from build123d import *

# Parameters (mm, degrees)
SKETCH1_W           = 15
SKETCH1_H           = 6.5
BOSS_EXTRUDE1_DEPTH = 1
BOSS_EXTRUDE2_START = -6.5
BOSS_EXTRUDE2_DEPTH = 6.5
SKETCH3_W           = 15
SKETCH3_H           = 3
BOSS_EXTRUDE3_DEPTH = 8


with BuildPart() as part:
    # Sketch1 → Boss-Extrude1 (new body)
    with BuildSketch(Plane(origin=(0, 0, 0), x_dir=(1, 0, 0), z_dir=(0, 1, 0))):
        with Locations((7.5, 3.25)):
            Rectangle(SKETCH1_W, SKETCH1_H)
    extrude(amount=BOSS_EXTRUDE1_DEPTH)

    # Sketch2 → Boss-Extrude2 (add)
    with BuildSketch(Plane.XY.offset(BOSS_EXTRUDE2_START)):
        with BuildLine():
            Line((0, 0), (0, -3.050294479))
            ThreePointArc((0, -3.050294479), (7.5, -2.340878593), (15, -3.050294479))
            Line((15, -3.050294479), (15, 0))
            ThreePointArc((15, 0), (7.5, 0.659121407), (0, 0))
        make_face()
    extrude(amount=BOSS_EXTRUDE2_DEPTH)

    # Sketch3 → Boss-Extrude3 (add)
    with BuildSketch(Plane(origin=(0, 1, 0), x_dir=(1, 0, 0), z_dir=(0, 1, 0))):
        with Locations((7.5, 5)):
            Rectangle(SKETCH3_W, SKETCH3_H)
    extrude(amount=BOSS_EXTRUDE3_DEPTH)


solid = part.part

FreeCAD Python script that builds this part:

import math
import FreeCAD as App
import Part
import Sketcher
from FreeCAD import Vector
Q = App.Units.Quantity


def add_polygon(sketch, points):
    """Adds a closed chain of lines whose ends are joined by coincident constraints."""
    first, n = sketch.GeometryCount, len(points)
    for a, b in zip(points, points[1:] + points[:1]):
        sketch.addGeometry(Part.LineSegment(App.Vector(*a, 0), App.Vector(*b, 0)), False)
    for i in range(n):
        sketch.addConstraint(Sketcher.Constraint("Coincident", first + i, 2, first + (i + 1) % n, 1))

doc = App.newDocument("Part")
body = doc.addObject("PartDesign::Body", "Body")

# Sketch on XZ plane
sketch1 = doc.addObject("Sketcher::SketchObject", "Sketch")
body.addObject(sketch1)
sketch1.AttachmentSupport = (doc.XZ_Plane, [""])
sketch1.MapMode = "FlatFace"
add_polygon(sketch1, [(0, -6), (0, 0), (15, 0), (15, -6)])  # lines 0-3
sketch1.addConstraint([
    Sketcher.Constraint("Vertical", 0),
    Sketcher.Constraint("Horizontal", 1),
    Sketcher.Constraint("Vertical", 2),
    Sketcher.Constraint("Horizontal", 3),
    Sketcher.Constraint("Coincident", 0, 2, -1, 1),
    Sketcher.Constraint("DistanceX", 1, 1, 1, 2, Q("15 mm")),
    Sketcher.Constraint("DistanceY", 0, 1, 0, 2, Q("6.5 mm")),
])
pad1 = doc.addObject("PartDesign::Pad", "Pad")
body.addObject(pad1)
pad1.Profile = sketch1
pad1.Length = 1
pad1.Reversed = True

# Sketch on XY plane
sketch2 = doc.addObject("Sketcher::SketchObject", "Sketch001")
body.addObject(sketch2)
sketch2.AttachmentSupport = (doc.XY_Plane, [""])
sketch2.MapMode = "FlatFace"
sketch2.AttachmentOffset = App.Placement(Vector(0, 0, -6.5), App.Rotation())
sketch2.addGeometry([
    Part.LineSegment(Vector(0, 0, 0), Vector(0, -3.1, 0)),
    Part.ArcOfCircle(Part.Circle(Vector(7.5, -42.3, 0), Vector(0, 0, 1), 40), math.radians(79), math.radians(101)),
    Part.LineSegment(Vector(15, -3.1, 0), Vector(15, 0, 0)),
    Part.ArcOfCircle(Part.Circle(Vector(7.5, -42.3, 0), Vector(0, 0, 1), 43), math.radians(80), math.radians(100)),
], False)
sketch2.addConstraint([
    Sketcher.Constraint("Coincident", 0, 2, 1, 2),
    Sketcher.Constraint("Coincident", 1, 1, 2, 1),
    Sketcher.Constraint("Coincident", 2, 2, 3, 1),
    Sketcher.Constraint("Coincident", 3, 2, 0, 1),
    Sketcher.Constraint("Vertical", 0),
    Sketcher.Constraint("Vertical", 2),
    Sketcher.Constraint("Coincident", 3, 2, -1, 1),
    Sketcher.Constraint("Coincident", 3, 3, 1, 3),
    Sketcher.Constraint("PointOnObject", 2, 2, -1),
    Sketcher.Constraint("Radius", 1, Q("40 mm")),
    Sketcher.Constraint("Radius", 3, Q("43 mm")),
    Sketcher.Constraint("DistanceX", -1, 1, 1, 1, Q("15 mm")),
])
pad2 = doc.addObject("PartDesign::Pad", "Pad001")
body.addObject(pad2)
pad2.Profile = sketch2
pad2.Length = 6.5

# Sketch on XZ plane
sketch3 = doc.addObject("Sketcher::SketchObject", "Sketch002")
body.addObject(sketch3)
sketch3.AttachmentSupport = (doc.XZ_Plane, [""])
sketch3.MapMode = "FlatFace"
sketch3.AttachmentOffset = App.Placement(Vector(0, 0, -1), App.Rotation())
add_polygon(sketch3, [(0, -6.5), (0, -3.5), (15, -3.5), (15, -6.5)])  # lines 0-3
sketch3.addConstraint([
    Sketcher.Constraint("Vertical", 0),
    Sketcher.Constraint("Horizontal", 1),
    Sketcher.Constraint("Vertical", 2),
    Sketcher.Constraint("Horizontal", 3),
    Sketcher.Constraint("PointOnObject", 0, 2, -2),
    Sketcher.Constraint("DistanceX", 1, 1, 1, 2, Q("15 mm")),
    Sketcher.Constraint("DistanceY", 0, 1, 0, 2, Q("3 mm")),
    Sketcher.Constraint("DistanceY", 0, 2, -1, 1, Q("3.5 mm")),
])
pad3 = doc.addObject("PartDesign::Pad", "Pad002")
body.addObject(pad3)
pad3.Profile = sketch3
pad3.Length = 8
pad3.Reversed = True

doc.recompute()
